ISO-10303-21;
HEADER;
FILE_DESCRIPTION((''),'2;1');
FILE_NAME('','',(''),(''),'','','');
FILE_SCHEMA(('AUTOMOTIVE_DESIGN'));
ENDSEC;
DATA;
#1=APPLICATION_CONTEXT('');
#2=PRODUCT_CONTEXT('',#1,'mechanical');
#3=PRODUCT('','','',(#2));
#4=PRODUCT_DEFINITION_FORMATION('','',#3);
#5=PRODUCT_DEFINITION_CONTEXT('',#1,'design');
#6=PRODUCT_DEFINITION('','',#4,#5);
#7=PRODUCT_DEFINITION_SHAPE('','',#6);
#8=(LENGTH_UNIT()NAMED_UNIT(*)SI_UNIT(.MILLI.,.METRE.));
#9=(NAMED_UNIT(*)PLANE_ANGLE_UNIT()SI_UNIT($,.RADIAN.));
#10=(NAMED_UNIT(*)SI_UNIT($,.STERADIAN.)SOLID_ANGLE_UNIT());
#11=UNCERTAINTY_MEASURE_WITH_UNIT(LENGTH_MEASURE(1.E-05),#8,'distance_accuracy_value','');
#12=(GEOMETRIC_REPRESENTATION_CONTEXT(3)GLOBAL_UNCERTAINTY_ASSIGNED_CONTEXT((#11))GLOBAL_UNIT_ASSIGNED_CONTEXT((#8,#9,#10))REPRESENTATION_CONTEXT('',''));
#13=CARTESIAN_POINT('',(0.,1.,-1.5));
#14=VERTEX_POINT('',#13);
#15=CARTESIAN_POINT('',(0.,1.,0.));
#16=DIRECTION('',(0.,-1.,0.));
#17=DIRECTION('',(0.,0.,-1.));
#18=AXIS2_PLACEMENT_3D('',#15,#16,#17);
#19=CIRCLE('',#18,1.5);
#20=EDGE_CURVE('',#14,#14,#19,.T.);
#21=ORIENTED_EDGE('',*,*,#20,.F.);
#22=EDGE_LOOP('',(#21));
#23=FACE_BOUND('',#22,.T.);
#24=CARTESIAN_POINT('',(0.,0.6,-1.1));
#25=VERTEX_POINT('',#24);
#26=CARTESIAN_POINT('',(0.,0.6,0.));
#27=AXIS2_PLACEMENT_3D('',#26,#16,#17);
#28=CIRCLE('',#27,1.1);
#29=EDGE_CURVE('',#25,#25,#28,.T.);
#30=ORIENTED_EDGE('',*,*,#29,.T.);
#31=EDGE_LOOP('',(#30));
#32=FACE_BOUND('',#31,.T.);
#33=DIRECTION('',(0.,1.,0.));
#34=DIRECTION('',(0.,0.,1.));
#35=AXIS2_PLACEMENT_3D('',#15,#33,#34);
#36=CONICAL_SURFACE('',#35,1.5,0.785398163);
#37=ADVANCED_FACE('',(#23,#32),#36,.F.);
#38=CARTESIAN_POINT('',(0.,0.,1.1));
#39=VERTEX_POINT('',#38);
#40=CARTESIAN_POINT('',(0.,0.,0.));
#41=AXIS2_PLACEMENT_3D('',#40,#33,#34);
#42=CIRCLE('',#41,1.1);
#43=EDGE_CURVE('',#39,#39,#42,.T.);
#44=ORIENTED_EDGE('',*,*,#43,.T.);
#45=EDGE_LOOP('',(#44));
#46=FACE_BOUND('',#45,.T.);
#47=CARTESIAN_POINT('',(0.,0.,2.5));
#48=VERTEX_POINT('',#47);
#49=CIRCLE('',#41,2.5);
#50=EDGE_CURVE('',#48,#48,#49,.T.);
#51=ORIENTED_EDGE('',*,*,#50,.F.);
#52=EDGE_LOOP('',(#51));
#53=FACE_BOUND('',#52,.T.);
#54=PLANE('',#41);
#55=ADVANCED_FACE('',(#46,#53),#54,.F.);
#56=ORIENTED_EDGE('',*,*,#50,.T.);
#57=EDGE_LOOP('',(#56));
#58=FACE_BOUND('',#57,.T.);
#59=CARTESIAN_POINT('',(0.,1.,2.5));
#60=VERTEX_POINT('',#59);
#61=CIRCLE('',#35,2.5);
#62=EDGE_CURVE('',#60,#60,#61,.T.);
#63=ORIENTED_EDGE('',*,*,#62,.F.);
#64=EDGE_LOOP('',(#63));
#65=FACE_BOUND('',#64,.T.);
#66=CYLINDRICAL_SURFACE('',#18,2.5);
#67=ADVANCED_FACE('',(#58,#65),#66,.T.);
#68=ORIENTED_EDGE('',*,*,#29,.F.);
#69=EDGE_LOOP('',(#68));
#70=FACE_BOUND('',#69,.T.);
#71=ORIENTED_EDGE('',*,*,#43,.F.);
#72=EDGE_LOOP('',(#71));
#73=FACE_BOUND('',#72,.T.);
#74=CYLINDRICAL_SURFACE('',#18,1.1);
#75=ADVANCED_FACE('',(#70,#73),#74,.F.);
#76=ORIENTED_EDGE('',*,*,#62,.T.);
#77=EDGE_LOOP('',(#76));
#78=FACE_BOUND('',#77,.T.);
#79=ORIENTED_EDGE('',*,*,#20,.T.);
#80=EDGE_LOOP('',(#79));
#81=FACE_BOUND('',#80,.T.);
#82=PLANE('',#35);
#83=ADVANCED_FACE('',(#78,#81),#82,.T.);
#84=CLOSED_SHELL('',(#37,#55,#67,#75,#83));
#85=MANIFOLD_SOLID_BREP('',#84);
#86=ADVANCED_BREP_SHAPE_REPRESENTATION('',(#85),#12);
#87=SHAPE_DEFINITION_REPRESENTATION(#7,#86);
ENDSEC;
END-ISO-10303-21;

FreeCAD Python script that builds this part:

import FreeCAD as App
import Part
import Sketcher
from FreeCAD import Vector
Q = App.Units.Quantity


def add_polygon(sketch, points):
    """Adds a closed chain of lines whose ends are joined by coincident constraints."""
    first, n = sketch.GeometryCount, len(points)
    for a, b in zip(points, points[1:] + points[:1]):
        sketch.addGeometry(Part.LineSegment(App.Vector(*a, 0), App.Vector(*b, 0)), False)
    for i in range(n):
        sketch.addConstraint(Sketcher.Constraint("Coincident", first + i, 2, first + (i + 1) % n, 1))

doc = App.newDocument("Part")
body = doc.addObject("PartDesign::Body", "Body")

# Sketch on XZ plane
sketch1 = body.newObject("Sketcher::SketchObject", "Sketch")
sketch1.AttachmentSupport = (doc.getObject("XZ_Plane"), [""])
sketch1.MapMode = "FlatFace"
sketch1.addGeometry([
    Part.Circle(Vector(0, 0, 0), Vector(0, 0, 1), 2.5),
    Part.Circle(Vector(0, 0, 0), Vector(0, 0, 1), 1.1),
], False)
sketch1.addConstraint([
    Sketcher.Constraint("Coincident", 0, 3, -1, 1),
    Sketcher.Constraint("Coincident", 1, 3, -1, 1),
    Sketcher.Constraint("Diameter", 0, Q("5 mm")),
    Sketcher.Constraint("Diameter", 1, Q("2.2 mm")),
])
pad1 = body.newObject("PartDesign::Pad", "Pad")
pad1.Profile = sketch1
pad1.Length = 1
pad1.Reversed = True

# Sketch on XY plane
sketch2 = body.newObject("Sketcher::SketchObject", "Sketch001")
sketch2.AttachmentSupport = (doc.getObject("XY_Plane"), [""])
sketch2.MapMode = "FlatFace"
add_polygon(sketch2, [(-1.1, 1), (-1.5, 1), (-1.1, 0.6)])  # lines 0-2
sketch2.addConstraint([
    Sketcher.Constraint("Horizontal", 0),
    Sketcher.Constraint("Vertical", 2),
    Sketcher.Constraint("Equal", 0, 2),
    Sketcher.Constraint("DistanceX", 0, 2, 0, 1, Q("0.4 mm")),
    Sketcher.Constraint("DistanceY", -1, 1, 0, 2, Q("1 mm")),
    Sketcher.Constraint("DistanceX", 0, 2, -1, 1, Q("1.5 mm")),
])
groove = body.newObject("PartDesign::Groove", "Groove")
groove.Profile = sketch2
groove.ReferenceAxis = (sketch2, ["V_Axis"])
groove.Angle = 360

doc.recompute()
